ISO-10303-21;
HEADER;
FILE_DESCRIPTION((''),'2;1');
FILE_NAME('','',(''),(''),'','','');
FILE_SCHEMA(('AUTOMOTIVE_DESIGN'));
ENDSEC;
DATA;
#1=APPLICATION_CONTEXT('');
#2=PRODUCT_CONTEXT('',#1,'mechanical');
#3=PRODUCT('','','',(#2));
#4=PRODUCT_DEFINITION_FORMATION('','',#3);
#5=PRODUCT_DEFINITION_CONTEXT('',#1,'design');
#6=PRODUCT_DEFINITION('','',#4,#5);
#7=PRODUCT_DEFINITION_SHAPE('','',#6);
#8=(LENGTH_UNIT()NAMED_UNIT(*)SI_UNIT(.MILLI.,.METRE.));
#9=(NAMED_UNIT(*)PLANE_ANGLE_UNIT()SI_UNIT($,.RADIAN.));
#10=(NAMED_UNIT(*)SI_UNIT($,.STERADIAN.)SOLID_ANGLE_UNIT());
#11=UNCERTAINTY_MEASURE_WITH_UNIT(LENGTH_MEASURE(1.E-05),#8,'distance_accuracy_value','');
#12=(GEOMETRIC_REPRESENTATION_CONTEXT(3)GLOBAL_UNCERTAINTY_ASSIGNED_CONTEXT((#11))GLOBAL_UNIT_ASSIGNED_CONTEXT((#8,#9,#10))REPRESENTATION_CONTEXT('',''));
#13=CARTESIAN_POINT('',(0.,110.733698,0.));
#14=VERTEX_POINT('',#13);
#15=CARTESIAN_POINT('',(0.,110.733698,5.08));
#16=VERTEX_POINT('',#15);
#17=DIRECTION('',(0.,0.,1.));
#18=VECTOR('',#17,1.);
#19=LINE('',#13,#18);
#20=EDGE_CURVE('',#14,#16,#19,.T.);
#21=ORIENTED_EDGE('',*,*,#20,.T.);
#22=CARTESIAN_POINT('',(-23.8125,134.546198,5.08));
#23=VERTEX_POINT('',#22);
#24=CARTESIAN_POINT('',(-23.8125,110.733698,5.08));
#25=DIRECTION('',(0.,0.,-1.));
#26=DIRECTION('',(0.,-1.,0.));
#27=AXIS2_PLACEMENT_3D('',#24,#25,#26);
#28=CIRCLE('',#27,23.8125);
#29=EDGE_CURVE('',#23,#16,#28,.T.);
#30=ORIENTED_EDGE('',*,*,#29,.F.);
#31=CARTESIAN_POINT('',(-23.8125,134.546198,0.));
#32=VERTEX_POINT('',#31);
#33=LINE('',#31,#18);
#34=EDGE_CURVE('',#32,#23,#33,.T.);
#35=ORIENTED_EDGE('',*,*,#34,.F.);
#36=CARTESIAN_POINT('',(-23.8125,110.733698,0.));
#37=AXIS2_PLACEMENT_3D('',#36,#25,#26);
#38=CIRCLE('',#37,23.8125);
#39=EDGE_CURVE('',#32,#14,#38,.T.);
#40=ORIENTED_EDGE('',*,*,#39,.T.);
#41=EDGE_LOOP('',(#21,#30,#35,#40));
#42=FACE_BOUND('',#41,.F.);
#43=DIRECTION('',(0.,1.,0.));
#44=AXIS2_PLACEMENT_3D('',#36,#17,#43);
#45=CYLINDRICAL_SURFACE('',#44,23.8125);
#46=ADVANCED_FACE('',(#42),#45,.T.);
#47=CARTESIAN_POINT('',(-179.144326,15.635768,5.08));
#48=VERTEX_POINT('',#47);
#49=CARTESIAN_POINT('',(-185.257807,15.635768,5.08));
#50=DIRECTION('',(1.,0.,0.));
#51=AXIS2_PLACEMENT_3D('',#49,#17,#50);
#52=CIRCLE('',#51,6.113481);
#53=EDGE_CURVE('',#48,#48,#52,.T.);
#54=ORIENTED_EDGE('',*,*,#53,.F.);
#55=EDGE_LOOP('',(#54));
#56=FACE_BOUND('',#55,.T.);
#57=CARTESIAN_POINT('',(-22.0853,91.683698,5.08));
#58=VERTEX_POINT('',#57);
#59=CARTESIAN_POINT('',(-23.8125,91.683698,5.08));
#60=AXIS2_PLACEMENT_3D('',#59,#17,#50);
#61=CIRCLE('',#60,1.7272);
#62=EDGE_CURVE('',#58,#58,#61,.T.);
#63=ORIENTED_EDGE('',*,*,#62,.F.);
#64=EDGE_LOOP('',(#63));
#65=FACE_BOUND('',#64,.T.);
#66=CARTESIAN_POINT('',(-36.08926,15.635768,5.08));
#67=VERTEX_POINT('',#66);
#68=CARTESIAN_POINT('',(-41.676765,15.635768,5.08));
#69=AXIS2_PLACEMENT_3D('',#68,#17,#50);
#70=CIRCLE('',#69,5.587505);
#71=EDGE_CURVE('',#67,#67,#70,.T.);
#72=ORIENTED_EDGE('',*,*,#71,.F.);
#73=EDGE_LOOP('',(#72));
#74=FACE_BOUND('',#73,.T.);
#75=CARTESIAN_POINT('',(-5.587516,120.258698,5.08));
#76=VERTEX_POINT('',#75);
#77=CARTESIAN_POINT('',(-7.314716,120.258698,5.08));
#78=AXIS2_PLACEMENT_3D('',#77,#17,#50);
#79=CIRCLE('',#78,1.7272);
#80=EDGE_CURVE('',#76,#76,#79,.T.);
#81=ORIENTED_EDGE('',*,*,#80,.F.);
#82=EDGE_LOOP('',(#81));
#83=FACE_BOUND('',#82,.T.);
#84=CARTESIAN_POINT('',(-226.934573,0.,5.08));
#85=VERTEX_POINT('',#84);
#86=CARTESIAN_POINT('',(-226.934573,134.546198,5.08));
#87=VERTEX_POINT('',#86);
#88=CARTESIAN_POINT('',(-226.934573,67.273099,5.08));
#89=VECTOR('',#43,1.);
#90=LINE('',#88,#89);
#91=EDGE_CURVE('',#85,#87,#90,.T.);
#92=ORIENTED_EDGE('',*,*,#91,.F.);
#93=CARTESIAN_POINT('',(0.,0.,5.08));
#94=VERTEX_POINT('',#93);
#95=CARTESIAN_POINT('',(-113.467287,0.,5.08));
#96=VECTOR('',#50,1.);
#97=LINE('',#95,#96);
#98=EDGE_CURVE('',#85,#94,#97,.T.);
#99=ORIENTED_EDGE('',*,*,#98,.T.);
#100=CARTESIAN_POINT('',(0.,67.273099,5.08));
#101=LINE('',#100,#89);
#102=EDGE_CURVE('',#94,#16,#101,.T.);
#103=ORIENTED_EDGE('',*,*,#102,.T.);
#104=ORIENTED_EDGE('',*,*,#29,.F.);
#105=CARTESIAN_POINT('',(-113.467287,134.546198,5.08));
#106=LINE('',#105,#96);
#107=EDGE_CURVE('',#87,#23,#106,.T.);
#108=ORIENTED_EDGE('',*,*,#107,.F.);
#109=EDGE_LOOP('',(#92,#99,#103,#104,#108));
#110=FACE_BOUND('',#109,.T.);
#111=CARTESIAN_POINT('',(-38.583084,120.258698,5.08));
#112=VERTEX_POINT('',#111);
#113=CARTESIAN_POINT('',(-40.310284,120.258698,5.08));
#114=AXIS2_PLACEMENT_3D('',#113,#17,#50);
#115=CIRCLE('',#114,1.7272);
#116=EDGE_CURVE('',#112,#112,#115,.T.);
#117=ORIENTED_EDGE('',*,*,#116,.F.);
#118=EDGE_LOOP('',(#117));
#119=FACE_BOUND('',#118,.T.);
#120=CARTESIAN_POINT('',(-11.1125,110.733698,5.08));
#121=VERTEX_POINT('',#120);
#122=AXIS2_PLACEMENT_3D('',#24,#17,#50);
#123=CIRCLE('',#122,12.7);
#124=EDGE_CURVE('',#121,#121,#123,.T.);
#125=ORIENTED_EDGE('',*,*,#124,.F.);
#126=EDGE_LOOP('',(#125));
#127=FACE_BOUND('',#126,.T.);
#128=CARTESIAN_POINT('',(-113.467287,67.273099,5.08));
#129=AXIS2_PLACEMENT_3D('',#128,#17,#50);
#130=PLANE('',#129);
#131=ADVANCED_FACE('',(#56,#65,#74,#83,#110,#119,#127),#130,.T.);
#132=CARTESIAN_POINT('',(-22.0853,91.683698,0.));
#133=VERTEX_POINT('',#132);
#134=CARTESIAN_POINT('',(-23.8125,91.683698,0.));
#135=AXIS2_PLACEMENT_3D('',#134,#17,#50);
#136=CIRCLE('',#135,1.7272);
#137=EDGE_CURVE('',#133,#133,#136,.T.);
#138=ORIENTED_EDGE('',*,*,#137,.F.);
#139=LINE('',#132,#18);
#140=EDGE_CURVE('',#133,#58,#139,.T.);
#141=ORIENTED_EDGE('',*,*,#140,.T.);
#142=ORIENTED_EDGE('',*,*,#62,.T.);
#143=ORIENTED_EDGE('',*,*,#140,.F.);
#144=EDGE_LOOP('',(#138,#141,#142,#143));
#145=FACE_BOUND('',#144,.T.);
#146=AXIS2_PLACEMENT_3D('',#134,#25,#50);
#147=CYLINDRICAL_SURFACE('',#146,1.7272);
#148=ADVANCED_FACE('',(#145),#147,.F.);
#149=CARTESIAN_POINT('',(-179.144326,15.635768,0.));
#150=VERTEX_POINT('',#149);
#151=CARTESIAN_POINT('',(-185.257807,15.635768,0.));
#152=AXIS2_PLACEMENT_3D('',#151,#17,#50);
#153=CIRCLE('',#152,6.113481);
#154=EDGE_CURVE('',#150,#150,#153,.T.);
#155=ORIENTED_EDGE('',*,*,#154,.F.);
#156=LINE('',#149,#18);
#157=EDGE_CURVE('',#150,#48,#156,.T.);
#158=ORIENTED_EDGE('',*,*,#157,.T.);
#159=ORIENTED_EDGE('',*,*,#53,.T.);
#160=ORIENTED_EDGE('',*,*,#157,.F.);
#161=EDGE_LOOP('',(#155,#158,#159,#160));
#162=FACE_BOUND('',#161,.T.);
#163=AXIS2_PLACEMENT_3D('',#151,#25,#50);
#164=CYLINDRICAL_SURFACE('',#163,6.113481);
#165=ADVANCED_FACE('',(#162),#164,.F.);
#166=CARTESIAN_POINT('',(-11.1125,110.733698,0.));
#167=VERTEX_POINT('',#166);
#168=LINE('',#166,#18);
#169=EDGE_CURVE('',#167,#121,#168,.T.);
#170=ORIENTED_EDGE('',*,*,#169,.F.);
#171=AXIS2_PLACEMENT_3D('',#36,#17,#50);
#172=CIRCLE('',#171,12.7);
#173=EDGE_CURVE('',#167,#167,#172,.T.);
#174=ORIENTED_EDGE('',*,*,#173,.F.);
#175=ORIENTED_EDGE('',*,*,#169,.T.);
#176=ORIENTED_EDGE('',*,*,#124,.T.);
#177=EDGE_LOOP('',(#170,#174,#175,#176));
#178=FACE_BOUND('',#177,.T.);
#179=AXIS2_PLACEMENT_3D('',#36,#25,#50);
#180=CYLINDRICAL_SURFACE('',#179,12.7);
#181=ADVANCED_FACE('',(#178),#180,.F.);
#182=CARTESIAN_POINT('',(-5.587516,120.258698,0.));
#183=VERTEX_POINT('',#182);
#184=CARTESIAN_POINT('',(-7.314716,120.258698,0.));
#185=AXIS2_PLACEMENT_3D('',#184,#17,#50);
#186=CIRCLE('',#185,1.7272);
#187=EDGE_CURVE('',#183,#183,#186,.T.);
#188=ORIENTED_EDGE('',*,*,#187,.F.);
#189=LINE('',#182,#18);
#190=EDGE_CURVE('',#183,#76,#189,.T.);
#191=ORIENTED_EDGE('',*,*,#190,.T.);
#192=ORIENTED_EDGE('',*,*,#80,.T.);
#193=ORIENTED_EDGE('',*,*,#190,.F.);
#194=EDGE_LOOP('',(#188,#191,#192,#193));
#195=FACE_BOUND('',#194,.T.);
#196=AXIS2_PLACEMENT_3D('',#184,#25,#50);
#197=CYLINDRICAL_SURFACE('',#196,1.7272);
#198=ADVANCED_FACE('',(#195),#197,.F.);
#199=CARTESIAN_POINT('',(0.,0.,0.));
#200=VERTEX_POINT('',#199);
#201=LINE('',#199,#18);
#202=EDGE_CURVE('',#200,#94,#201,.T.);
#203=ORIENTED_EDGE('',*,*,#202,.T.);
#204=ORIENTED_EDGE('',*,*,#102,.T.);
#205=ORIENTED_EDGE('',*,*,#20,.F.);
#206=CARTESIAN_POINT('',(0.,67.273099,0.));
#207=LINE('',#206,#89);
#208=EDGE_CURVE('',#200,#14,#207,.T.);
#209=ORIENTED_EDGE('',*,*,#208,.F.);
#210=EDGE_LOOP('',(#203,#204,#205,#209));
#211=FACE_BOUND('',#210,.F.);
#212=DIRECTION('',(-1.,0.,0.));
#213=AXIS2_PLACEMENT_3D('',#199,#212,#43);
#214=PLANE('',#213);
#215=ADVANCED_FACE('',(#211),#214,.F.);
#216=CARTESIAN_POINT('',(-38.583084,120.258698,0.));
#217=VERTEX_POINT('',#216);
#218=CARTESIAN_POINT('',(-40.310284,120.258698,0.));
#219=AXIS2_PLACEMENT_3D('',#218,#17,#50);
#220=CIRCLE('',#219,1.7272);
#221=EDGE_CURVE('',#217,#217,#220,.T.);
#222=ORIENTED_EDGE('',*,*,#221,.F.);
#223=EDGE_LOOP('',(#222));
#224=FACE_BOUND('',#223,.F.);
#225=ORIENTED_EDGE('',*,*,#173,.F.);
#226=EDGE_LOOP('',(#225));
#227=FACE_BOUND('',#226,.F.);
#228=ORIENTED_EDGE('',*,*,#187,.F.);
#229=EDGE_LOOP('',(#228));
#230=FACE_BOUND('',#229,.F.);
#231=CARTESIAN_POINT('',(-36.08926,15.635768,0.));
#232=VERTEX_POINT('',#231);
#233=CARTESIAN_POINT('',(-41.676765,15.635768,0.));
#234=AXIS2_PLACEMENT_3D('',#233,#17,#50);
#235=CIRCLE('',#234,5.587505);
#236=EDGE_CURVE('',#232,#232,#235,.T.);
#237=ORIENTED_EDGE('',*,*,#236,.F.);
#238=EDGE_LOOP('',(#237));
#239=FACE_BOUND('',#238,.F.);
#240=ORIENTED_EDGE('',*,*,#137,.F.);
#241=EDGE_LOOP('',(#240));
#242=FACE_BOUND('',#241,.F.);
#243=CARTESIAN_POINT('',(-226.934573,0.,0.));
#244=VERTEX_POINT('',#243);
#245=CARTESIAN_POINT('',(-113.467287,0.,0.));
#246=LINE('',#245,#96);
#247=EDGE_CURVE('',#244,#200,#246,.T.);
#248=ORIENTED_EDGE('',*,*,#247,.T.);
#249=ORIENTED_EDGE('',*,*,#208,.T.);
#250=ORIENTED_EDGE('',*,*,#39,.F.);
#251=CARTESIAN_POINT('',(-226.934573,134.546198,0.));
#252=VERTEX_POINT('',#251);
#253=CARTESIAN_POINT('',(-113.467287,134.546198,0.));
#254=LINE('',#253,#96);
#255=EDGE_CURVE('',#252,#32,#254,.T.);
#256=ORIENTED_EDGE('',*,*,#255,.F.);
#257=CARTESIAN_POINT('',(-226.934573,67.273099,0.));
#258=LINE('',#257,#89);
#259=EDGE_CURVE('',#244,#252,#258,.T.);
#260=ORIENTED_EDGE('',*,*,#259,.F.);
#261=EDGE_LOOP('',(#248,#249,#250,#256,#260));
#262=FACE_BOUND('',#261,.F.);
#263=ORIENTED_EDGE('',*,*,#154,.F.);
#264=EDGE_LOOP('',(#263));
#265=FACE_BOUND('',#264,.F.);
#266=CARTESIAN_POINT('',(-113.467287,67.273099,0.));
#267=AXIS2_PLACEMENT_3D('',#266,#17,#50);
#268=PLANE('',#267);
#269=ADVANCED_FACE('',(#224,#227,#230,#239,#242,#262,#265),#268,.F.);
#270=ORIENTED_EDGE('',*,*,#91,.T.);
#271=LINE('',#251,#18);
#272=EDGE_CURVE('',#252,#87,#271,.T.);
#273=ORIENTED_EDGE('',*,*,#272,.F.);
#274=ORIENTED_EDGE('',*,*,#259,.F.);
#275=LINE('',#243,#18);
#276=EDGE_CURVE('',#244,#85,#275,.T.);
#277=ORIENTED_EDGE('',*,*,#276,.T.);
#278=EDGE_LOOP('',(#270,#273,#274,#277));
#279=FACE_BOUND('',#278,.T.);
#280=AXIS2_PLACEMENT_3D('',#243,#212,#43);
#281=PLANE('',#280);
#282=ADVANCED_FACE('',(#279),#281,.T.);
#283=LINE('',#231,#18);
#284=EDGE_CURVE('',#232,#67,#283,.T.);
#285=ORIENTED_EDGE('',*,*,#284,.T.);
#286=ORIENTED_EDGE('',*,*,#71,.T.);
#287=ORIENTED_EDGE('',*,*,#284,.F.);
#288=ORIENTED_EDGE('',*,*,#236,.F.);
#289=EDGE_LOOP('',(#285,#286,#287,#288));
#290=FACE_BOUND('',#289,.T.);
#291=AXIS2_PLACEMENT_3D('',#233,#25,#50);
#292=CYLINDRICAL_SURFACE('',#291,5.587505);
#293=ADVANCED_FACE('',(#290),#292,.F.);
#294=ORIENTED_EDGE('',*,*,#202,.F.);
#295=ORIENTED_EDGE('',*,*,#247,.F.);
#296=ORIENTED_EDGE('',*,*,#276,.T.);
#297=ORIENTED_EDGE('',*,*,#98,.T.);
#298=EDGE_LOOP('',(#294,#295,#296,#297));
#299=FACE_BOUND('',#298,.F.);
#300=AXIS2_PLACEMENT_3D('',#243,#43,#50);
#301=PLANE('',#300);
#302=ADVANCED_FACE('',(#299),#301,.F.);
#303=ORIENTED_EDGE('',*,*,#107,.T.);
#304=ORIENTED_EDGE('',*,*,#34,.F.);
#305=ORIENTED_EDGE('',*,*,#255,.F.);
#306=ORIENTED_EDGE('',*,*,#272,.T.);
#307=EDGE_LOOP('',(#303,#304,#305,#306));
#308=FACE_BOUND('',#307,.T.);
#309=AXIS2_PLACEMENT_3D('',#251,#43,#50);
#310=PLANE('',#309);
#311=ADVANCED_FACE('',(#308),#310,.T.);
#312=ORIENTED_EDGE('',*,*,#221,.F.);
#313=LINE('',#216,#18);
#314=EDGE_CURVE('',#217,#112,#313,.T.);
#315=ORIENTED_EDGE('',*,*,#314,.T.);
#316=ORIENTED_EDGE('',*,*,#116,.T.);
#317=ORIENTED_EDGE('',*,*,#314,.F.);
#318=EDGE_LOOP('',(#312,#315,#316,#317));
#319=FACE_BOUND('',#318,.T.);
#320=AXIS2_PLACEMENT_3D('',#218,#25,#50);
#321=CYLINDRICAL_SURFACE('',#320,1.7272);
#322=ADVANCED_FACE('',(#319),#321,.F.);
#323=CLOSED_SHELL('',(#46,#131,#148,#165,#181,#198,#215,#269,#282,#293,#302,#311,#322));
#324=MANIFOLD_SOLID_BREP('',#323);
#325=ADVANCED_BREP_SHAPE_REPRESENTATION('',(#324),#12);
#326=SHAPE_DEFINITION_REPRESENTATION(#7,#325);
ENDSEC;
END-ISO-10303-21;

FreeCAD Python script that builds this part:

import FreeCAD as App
import Part
import Sketcher
Q = App.Units.Quantity


def edges_at(feature, points):
    """Names of the edges that pass closest to the given points."""
    edges = feature.Shape.Edges
    near = lambda p: min(range(len(edges)), key=lambda i: edges[i].distToShape(Part.Vertex(*p))[0])
    return sorted({f"Edge{near(p) + 1}" for p in points})

doc = App.newDocument("Part")
body = doc.addObject("PartDesign::Body", "Body")

# Sketch on XY plane
sketch1 = doc.addObject("Sketcher::SketchObject", "Sketch")
body.addObject(sketch1)
sketch1.AttachmentSupport = (doc.XY_Plane, [""])
sketch1.MapMode = "FlatFace"
sketch1.addGeometry(Part.LineSegment(App.Vector(-226.934573, 134.546198, 0), App.Vector(-226.934573, 0, 0)), False)
sketch1.addGeometry(Part.LineSegment(App.Vector(-226.934573, 0, 0), App.Vector(0, 0, 0)), False)
sketch1.addGeometry(Part.LineSegment(App.Vector(0, 0, 0), App.Vector(0, 134.546198, 0)), False)
sketch1.addGeometry(Part.LineSegment(App.Vector(0, 134.546198, 0), App.Vector(-226.934573, 134.546198, 0)), False)
sketch1.addGeometry(Part.Circle(App.Vector(-185.257807, 15.635768, 0), App.Vector(0, 0, 1), 6.113481), False)
sketch1.addGeometry(Part.Circle(App.Vector(-41.676765, 15.635768, 0), App.Vector(0, 0, 1), 5.587505), False)
sketch1.addGeometry(Part.Circle(App.Vector(-23.8125, 91.683698, 0), App.Vector(0, 0, 1), 1.7272), False)
sketch1.addGeometry(Part.Circle(App.Vector(-40.310284, 120.258698, 0), App.Vector(0, 0, 1), 1.7272), False)
sketch1.addGeometry(Part.Circle(App.Vector(-23.8125, 110.733698, 0), App.Vector(0, 0, 1), 12.7), False)
sketch1.addGeometry(Part.Circle(App.Vector(-7.314716, 120.258698, 0), App.Vector(0, 0, 1), 1.7272), False)
sketch1.addConstraint(Sketcher.Constraint("Coincident", 0, 2, 1, 1))
sketch1.addConstraint(Sketcher.Constraint("Coincident", 1, 2, 2, 1))
sketch1.addConstraint(Sketcher.Constraint("Coincident", 2, 2, 3, 1))
sketch1.addConstraint(Sketcher.Constraint("Coincident", 3, 2, 0, 1))
sketch1.addConstraint(Sketcher.Constraint("Vertical", 0))
sketch1.addConstraint(Sketcher.Constraint("Horizontal", 1))
sketch1.addConstraint(Sketcher.Constraint("Vertical", 2))
sketch1.addConstraint(Sketcher.Constraint("Horizontal", 3))
sketch1.addConstraint(Sketcher.Constraint("Coincident", 1, 2, -1, 1))
sketch1.addConstraint(Sketcher.Constraint("Equal", 6, 7))
sketch1.addConstraint(Sketcher.Constraint("Equal", 7, 9))
sketch1.addConstraint(Sketcher.Constraint("Horizontal", 4, 3, 5, 3))
sketch1.addConstraint(Sketcher.Constraint("Horizontal", 7, 3, 9, 3))
sketch1.addConstraint(Sketcher.Constraint("Vertical", 6, 3, 8, 3))
sketch1.addConstraint(Sketcher.Constraint("Diameter", 8, Q("1 in")))
sketch1.addConstraint(Sketcher.Constraint("Diameter", 6, Q("0.136 in")))
sketch1.addConstraint(Sketcher.Constraint("DistanceY", 6, 3, 8, 3, Q("0.75 in")))
sketch1.addConstraint(Sketcher.Constraint("Diameter", 5, 11.17501))
sketch1.addConstraint(Sketcher.Constraint("DistanceX", 6, 3, -1, 1, Q("0.9375 in")))
sketch1.addConstraint(Sketcher.Constraint("DistanceY", 6, 3, 7, 3, Q("1.125 in")))
sketch1.addConstraint(Sketcher.Constraint("DistanceY", 9, 3, 2, 2, Q("0.5625 in")))
sketch1.addConstraint(Sketcher.Constraint("Diameter", 4, 12.226962))
sketch1.addConstraint(Sketcher.Constraint("DistanceY", 0, 2, 0, 1, 134.546198))
sketch1.addConstraint(Sketcher.Constraint("DistanceX", 1, 1, 1, 2, 226.934573))
sketch1.addConstraint(Sketcher.Constraint("DistanceY", 5, 3, 6, 3, 76.04793))
sketch1.addConstraint(Sketcher.Constraint("DistanceX", 5, 3, 7, 3, 1.366481))
sketch1.addConstraint(Sketcher.Constraint("DistanceX", 7, 3, 9, 3, 32.995568))
sketch1.addConstraint(Sketcher.Constraint("DistanceX", 4, 3, 9, 3, 177.943091))
sketch1.addConstraint(Sketcher.Constraint("DistanceX", 0, 2, 5, 3, 185.257809))
pad1 = doc.addObject("PartDesign::Pad", "Pad")
body.addObject(pad1)
pad1.Profile = sketch1
pad1.Length = Q("0.2 in")
doc.recompute()

fillet = doc.addObject("PartDesign::Fillet", "Fillet")
body.addObject(fillet)
fillet.Base = (pad1, edges_at(pad1, [(0, 134.546, 2.54)]))
fillet.Radius = Q("0.9375 in")

doc.recompute()
